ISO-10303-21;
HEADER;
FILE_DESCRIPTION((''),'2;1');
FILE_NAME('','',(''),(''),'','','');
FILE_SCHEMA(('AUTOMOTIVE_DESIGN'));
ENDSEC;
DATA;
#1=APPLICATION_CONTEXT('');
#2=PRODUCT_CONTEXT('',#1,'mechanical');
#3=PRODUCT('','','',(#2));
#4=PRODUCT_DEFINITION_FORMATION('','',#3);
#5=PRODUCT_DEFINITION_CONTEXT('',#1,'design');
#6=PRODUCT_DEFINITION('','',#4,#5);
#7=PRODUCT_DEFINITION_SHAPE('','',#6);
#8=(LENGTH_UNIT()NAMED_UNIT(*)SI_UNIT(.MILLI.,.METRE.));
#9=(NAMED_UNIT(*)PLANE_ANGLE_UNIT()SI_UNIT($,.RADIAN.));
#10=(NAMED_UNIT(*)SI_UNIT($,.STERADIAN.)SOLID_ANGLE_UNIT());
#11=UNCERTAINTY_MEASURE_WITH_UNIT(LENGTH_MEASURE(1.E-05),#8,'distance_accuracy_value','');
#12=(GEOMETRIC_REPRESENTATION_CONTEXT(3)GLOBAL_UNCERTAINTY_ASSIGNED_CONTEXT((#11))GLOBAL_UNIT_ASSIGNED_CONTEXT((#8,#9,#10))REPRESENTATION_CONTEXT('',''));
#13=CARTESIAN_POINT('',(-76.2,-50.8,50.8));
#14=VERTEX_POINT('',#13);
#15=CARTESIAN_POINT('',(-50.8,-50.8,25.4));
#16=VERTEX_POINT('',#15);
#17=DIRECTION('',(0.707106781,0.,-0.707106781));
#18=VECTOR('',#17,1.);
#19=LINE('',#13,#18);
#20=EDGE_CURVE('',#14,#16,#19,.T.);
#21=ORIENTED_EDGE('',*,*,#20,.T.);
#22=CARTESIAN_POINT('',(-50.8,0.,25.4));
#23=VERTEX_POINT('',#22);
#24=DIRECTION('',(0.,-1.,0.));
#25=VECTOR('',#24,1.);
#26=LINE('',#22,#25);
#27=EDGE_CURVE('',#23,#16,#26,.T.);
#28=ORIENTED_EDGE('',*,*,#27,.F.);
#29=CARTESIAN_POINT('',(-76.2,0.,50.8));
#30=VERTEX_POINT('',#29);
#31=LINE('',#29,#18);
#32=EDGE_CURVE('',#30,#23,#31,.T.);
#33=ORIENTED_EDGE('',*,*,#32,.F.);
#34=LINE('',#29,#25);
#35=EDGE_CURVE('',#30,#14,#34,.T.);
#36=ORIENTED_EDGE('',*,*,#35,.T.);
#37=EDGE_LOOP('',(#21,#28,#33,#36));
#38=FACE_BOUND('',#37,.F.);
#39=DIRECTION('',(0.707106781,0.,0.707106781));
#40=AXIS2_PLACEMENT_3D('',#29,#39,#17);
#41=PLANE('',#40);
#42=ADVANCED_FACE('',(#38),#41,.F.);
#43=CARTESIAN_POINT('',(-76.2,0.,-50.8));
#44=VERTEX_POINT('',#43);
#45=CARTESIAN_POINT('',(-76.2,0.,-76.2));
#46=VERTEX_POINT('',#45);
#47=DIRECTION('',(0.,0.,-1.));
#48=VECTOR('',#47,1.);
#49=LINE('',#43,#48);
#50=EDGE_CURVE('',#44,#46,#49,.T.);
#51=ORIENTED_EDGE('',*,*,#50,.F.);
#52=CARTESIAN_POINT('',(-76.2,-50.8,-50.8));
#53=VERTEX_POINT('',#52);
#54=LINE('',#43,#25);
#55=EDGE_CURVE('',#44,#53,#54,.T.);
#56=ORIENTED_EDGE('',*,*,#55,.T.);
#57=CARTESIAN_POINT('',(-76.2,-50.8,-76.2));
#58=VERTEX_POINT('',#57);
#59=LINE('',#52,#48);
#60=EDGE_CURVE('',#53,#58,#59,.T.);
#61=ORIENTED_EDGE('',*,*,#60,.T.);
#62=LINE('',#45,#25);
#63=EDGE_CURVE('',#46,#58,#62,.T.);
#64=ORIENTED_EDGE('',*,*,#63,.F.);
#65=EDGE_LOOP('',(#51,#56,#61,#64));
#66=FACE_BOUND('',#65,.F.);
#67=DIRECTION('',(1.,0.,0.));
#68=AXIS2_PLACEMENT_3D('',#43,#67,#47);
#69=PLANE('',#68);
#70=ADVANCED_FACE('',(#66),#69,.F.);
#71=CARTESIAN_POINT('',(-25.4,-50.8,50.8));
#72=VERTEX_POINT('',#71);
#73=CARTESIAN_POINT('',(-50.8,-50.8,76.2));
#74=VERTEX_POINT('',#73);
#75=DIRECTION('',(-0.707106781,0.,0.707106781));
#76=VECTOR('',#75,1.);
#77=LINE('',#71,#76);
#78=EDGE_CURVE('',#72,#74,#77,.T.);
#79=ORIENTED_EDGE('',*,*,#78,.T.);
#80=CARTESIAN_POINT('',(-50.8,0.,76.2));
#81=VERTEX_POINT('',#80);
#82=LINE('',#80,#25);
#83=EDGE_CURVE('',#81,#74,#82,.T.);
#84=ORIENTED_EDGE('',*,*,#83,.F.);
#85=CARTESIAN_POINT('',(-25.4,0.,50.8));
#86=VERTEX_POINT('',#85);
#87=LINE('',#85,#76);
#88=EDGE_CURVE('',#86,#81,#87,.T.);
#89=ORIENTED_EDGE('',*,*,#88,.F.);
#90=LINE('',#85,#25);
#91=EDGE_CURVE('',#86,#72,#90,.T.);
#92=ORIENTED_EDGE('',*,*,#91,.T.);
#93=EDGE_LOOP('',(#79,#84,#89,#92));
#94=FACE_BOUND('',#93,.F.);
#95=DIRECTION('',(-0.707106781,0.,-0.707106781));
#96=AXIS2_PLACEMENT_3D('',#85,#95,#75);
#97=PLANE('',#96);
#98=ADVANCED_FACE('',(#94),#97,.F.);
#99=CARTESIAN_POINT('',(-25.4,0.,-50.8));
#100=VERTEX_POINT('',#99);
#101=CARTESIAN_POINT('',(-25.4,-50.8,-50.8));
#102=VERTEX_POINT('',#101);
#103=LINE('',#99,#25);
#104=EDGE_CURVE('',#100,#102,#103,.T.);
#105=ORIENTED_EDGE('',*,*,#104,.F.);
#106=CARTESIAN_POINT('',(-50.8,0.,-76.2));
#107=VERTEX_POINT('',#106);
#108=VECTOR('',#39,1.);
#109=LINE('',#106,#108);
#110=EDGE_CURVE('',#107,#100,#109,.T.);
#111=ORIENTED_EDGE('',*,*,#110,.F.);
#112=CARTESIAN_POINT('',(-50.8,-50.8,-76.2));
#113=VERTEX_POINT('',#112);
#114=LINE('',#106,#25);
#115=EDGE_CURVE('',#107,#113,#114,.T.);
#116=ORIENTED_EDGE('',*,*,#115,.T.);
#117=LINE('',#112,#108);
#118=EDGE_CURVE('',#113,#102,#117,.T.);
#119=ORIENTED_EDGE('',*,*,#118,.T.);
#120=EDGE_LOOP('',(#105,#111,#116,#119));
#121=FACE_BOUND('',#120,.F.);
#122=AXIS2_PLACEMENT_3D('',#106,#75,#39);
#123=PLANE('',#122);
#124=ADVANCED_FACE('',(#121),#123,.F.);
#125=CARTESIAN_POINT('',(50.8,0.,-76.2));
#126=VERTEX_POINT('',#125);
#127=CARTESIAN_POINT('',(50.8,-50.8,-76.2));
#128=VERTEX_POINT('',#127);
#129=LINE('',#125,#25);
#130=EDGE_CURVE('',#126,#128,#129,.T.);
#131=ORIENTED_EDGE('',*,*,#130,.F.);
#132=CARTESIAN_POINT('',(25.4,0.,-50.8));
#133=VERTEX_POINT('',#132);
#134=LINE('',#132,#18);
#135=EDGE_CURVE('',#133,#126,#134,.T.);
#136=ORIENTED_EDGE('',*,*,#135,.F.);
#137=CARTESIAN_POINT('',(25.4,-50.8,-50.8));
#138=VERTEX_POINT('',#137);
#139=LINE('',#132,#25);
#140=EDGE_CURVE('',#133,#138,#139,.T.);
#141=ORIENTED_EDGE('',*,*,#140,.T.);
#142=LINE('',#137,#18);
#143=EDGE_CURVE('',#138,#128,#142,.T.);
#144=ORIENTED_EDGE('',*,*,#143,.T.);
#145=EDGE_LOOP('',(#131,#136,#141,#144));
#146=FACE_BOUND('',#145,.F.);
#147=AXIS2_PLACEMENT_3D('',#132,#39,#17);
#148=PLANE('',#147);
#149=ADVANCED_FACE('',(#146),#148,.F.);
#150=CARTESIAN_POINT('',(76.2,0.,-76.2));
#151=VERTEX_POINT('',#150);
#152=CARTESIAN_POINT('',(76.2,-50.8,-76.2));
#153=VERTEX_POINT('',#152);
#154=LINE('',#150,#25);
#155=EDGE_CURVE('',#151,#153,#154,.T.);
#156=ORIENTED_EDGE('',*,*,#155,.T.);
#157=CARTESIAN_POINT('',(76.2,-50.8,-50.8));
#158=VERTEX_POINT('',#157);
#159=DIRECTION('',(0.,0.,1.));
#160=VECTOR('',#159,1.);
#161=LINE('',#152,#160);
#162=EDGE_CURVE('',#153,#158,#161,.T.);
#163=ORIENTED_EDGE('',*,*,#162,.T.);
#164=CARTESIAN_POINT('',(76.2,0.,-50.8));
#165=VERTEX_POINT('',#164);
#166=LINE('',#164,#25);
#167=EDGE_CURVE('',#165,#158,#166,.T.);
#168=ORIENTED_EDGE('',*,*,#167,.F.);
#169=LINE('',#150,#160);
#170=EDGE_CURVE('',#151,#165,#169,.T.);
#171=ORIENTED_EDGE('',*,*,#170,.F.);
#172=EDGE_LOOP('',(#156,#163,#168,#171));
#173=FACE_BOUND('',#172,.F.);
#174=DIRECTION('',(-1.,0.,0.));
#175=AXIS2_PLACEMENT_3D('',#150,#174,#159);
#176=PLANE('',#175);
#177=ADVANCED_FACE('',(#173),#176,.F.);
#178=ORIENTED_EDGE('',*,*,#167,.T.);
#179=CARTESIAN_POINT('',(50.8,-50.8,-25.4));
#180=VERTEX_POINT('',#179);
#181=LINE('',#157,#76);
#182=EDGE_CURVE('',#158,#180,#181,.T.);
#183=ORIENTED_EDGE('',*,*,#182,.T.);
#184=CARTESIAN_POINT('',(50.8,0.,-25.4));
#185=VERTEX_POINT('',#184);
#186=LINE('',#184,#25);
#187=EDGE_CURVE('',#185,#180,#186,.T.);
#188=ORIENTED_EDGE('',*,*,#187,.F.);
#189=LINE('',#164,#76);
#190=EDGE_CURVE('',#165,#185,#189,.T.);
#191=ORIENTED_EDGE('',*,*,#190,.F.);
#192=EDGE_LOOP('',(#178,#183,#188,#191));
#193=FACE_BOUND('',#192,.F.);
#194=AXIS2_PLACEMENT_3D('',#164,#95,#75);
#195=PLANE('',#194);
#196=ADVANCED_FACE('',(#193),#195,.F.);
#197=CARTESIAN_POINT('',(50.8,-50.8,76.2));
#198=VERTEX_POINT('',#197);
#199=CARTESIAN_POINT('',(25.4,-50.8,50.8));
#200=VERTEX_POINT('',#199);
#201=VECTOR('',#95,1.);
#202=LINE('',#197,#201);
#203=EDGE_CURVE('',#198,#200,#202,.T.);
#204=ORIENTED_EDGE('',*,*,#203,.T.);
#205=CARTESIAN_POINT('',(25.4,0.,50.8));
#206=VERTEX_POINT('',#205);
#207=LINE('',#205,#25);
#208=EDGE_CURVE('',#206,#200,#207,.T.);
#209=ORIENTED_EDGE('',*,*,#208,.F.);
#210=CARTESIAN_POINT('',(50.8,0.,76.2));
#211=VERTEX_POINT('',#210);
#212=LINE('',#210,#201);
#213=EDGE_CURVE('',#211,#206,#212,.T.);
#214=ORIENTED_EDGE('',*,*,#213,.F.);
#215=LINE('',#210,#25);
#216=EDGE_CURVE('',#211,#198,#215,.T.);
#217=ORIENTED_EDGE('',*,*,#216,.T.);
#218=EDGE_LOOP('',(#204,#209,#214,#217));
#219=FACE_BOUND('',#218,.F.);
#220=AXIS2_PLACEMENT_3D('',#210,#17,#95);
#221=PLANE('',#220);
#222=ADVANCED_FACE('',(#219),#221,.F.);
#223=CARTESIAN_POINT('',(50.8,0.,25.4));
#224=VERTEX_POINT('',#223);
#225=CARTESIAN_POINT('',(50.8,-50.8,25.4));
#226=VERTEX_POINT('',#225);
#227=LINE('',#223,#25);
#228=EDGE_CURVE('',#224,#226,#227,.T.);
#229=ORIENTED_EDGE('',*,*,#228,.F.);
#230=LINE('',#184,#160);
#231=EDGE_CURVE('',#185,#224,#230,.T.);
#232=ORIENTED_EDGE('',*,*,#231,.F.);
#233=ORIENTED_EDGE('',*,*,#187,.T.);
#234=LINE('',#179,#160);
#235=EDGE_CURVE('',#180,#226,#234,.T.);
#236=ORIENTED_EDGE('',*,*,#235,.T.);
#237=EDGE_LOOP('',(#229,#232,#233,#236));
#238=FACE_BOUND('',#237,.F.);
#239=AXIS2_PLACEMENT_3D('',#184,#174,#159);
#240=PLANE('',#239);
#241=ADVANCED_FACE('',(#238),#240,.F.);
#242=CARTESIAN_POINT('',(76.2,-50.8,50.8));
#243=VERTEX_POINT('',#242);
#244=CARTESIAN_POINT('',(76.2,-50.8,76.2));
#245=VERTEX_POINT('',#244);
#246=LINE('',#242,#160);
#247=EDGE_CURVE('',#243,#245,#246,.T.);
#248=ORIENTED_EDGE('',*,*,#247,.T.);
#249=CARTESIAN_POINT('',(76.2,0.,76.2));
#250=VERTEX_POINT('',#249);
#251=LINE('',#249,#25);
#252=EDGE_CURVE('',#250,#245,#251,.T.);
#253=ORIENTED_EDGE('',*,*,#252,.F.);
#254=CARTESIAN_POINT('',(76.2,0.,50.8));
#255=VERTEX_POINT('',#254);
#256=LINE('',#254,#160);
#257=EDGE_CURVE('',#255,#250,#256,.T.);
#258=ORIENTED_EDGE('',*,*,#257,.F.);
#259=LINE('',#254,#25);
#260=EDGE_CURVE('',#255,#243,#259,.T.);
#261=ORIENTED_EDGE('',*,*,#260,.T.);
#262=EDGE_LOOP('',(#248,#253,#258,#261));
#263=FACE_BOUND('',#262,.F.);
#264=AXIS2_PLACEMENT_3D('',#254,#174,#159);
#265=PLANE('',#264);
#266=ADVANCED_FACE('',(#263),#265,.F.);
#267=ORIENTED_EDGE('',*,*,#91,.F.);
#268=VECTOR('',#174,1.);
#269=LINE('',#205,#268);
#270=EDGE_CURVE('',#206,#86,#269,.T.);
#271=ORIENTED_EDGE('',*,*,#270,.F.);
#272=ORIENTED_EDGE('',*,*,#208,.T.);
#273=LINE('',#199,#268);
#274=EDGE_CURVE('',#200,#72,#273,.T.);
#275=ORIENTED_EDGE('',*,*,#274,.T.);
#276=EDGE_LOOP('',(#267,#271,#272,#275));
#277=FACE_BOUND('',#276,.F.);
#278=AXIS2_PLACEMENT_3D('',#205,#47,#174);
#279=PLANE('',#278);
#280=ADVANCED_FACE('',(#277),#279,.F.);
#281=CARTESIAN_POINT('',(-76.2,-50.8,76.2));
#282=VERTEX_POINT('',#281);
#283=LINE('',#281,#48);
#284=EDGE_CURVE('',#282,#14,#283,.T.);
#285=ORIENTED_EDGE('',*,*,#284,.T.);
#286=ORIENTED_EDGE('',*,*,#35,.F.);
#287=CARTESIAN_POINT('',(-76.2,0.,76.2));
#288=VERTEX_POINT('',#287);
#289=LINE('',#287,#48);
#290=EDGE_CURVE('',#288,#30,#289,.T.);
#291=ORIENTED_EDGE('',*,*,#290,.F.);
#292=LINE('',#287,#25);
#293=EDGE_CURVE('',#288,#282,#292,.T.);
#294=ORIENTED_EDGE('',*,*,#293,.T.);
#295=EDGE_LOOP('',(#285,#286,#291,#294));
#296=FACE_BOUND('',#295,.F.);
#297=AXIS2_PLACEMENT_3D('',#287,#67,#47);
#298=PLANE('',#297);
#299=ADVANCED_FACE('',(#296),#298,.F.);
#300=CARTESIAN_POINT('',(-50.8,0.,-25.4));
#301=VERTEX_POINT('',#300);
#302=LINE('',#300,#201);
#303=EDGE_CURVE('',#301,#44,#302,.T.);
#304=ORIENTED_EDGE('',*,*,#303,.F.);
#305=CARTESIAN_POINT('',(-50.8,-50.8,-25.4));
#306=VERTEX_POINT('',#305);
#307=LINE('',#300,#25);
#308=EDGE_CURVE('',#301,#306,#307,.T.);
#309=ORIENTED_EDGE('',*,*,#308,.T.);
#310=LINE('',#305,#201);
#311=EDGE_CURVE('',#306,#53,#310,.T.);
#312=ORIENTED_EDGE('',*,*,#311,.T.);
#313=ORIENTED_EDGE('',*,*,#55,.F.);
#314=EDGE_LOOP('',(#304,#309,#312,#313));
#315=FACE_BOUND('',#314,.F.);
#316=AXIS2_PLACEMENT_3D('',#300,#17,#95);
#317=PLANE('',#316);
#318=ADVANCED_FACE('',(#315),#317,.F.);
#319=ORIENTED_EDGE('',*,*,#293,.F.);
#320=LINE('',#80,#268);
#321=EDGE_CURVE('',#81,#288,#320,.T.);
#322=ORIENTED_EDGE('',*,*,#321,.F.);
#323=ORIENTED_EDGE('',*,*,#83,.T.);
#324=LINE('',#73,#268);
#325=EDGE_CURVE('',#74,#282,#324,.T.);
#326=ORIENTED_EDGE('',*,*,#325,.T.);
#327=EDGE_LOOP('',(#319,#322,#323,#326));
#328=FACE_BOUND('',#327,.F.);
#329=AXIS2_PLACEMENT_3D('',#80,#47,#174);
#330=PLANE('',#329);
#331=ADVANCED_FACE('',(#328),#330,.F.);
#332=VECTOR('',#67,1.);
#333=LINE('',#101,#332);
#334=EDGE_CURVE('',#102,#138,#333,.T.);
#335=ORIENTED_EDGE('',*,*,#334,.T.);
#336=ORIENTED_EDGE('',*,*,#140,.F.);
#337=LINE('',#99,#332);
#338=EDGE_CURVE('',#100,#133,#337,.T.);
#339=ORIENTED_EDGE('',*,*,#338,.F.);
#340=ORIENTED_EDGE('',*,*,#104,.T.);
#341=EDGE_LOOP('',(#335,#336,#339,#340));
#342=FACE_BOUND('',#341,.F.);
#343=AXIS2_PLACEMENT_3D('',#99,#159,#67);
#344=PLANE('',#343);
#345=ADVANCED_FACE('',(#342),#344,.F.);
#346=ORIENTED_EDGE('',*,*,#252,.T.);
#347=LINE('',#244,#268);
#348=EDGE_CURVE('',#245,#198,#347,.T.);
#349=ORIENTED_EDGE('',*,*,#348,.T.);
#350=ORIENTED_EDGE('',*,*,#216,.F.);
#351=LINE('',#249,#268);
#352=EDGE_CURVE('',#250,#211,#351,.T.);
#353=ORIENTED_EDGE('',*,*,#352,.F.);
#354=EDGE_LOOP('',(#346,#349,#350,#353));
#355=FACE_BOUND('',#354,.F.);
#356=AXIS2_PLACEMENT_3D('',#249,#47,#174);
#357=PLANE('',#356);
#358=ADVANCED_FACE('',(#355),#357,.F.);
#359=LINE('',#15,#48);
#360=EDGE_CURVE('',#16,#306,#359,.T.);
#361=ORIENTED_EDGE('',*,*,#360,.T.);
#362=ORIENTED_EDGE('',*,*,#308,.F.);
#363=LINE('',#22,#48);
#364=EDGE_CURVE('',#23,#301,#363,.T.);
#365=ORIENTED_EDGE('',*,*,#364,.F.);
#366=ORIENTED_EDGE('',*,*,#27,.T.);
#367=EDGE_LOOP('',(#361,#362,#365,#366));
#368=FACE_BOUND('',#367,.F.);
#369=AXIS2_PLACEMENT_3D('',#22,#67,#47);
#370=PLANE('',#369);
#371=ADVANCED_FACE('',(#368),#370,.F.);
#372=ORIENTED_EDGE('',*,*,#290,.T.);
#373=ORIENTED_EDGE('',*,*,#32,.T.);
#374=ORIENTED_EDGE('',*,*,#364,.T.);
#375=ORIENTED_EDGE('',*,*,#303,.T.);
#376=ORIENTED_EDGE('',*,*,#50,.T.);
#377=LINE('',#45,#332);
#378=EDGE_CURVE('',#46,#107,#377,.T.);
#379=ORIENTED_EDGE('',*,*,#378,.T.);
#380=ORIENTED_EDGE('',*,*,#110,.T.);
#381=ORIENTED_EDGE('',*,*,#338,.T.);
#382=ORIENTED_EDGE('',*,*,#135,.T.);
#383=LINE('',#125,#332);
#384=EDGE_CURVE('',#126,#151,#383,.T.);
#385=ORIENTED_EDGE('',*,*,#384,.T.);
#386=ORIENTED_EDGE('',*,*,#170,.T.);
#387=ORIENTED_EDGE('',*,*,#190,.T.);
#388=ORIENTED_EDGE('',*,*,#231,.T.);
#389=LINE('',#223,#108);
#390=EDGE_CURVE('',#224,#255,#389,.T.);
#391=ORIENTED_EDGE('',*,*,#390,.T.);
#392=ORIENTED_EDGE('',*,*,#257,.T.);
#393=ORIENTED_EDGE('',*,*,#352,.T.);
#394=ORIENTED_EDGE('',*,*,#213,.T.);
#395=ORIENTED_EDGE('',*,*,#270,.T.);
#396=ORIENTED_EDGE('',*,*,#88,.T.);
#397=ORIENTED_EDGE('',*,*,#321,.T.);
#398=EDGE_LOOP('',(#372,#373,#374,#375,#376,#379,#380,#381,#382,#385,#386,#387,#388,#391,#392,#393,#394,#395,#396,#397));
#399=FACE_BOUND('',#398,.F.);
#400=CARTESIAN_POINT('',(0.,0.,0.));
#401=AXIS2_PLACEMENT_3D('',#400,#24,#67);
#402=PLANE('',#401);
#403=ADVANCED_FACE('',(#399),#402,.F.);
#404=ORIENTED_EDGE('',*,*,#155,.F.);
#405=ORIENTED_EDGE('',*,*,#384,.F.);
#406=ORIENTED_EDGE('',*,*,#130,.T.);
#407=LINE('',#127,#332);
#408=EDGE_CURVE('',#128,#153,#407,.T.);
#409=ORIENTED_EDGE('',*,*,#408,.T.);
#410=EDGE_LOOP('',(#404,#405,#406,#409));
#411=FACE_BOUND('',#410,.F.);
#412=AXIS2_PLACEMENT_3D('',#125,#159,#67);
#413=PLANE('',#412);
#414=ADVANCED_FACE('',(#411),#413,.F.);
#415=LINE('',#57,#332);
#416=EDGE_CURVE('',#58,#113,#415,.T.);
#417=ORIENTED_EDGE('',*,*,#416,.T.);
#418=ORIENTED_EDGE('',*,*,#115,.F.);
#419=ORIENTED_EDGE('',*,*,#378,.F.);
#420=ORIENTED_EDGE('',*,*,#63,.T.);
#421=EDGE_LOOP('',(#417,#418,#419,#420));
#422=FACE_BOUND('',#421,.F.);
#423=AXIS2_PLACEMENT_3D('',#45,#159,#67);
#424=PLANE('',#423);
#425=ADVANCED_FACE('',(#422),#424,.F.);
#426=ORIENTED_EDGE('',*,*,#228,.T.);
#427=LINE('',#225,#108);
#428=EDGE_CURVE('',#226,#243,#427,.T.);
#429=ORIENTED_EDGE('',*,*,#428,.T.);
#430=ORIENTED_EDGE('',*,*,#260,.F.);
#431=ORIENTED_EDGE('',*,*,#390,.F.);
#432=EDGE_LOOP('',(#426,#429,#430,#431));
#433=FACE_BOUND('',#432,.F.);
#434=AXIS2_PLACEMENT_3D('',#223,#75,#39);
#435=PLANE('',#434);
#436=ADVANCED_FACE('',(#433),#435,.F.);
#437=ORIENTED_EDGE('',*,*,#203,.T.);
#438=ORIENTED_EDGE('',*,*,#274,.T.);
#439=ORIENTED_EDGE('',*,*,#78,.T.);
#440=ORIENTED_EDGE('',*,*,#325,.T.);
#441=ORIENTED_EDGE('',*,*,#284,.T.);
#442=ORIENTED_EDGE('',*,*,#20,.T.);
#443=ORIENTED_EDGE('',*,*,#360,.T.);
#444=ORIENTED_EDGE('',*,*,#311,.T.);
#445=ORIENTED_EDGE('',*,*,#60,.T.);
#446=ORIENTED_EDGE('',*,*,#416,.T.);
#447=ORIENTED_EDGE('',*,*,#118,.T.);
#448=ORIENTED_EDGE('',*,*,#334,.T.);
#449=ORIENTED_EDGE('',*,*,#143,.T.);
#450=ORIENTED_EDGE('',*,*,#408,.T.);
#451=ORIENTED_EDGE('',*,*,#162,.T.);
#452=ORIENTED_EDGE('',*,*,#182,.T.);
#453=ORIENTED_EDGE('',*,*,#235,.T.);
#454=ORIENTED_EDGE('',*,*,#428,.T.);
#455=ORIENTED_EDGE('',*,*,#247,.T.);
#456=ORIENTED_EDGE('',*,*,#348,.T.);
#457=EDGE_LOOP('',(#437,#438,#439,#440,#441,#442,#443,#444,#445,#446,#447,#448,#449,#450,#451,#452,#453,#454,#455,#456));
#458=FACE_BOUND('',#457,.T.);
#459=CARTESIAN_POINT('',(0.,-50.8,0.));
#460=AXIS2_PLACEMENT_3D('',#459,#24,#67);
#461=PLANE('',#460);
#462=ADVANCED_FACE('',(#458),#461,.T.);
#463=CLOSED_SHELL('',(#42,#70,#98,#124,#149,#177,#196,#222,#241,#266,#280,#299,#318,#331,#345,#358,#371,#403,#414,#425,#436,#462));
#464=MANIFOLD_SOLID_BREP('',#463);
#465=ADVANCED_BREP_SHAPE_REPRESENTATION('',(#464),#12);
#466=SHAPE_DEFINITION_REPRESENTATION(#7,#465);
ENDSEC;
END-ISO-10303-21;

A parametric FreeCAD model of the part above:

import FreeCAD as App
import Part
import Sketcher

V = App.Vector
Q = App.Units.Quantity

doc = App.newDocument("Part")
body = doc.addObject("PartDesign::Body", "Body")

# Sketch on XZ plane
sketch1 = body.newObject("Sketcher::SketchObject", "Sketch")
sketch1.AttachmentSupport = (doc.getObject("XZ_Plane"), [""])
sketch1.MapMode = "FlatFace"
sketch1.addGeometry([
    Part.LineSegment(V(-25, 51, 0), V(-51, 76, 0)),  # 0
    Part.LineSegment(V(-51, 76, 0), V(-76, 76, 0)),  # 1
    Part.LineSegment(V(-76, 76, 0), V(-76, 51, 0)),  # 2
    Part.LineSegment(V(-76, 51, 0), V(-51, 25, 0)),  # 3
    Part.LineSegment(V(-51, 25, 0), V(-51, -25, 0)),  # 4
    Part.LineSegment(V(-51, -25, 0), V(-76, -51, 0)),  # 5
    Part.LineSegment(V(-76, -51, 0), V(-76, -76, 0)),  # 6
    Part.LineSegment(V(-76, -76, 0), V(-51, -76, 0)),  # 7
    Part.LineSegment(V(-51, -76, 0), V(-25, -51, 0)),  # 8
    Part.LineSegment(V(-25, -51, 0), V(25, -51, 0)),  # 9
    Part.LineSegment(V(25, -51, 0), V(51, -76, 0)),  # 10
    Part.LineSegment(V(51, -76, 0), V(76, -76, 0)),  # 11
    Part.LineSegment(V(76, -76, 0), V(76, -51, 0)),  # 12
    Part.LineSegment(V(76, -51, 0), V(51, -25, 0)),  # 13
    Part.LineSegment(V(51, -25, 0), V(51, 25, 0)),  # 14
    Part.LineSegment(V(51, 25, 0), V(76, 51, 0)),  # 15
    Part.LineSegment(V(76, 51, 0), V(76, 76, 0)),  # 16
    Part.LineSegment(V(76, 76, 0), V(51, 76, 0)),  # 17
    Part.LineSegment(V(51, 76, 0), V(25, 51, 0)),  # 18
    Part.LineSegment(V(25, 51, 0), V(-25, 51, 0)),  # 19
], False)
sketch1.addConstraint([
    Sketcher.Constraint("Coincident", 0, 2, 1, 1),
    Sketcher.Constraint("Coincident", 1, 2, 2, 1),
    Sketcher.Constraint("Coincident", 2, 2, 3, 1),
    Sketcher.Constraint("Coincident", 3, 2, 4, 1),
    Sketcher.Constraint("Coincident", 4, 2, 5, 1),
    Sketcher.Constraint("Coincident", 5, 2, 6, 1),
    Sketcher.Constraint("Coincident", 6, 2, 7, 1),
    Sketcher.Constraint("Coincident", 7, 2, 8, 1),
    Sketcher.Constraint("Coincident", 8, 2, 9, 1),
    Sketcher.Constraint("Coincident", 9, 2, 10, 1),
    Sketcher.Constraint("Coincident", 10, 2, 11, 1),
    Sketcher.Constraint("Coincident", 11, 2, 12, 1),
    Sketcher.Constraint("Coincident", 12, 2, 13, 1),
    Sketcher.Constraint("Coincident", 13, 2, 14, 1),
    Sketcher.Constraint("Coincident", 14, 2, 15, 1),
    Sketcher.Constraint("Coincident", 15, 2, 16, 1),
    Sketcher.Constraint("Coincident", 16, 2, 17, 1),
    Sketcher.Constraint("Coincident", 17, 2, 18, 1),
    Sketcher.Constraint("Coincident", 18, 2, 19, 1),
    Sketcher.Constraint("Coincident", 19, 2, 0, 1),
    Sketcher.Constraint("Horizontal", 1),
    Sketcher.Constraint("Vertical", 2),
    Sketcher.Constraint("Vertical", 4),
    Sketcher.Constraint("Vertical", 6),
    Sketcher.Constraint("Horizontal", 7),
    Sketcher.Constraint("Horizontal", 9),
    Sketcher.Constraint("Horizontal", 11),
    Sketcher.Constraint("Vertical", 12),
    Sketcher.Constraint("Vertical", 14),
    Sketcher.Constraint("Vertical", 16),
    Sketcher.Constraint("Horizontal", 17),
    Sketcher.Constraint("Horizontal", 19),
    Sketcher.Constraint("Symmetric", 0, 2, 10, 2, -1, 1),
    Sketcher.Constraint("Symmetric", 2, 2, 12, 2, -1, 1),
    Sketcher.Constraint("Symmetric", 3, 2, 13, 2, -1, 1),
    Sketcher.Constraint("Symmetric", 5, 2, 15, 2, -1, 1),
    Sketcher.Constraint("Symmetric", 7, 2, 17, 2, -1, 1),
    Sketcher.Constraint("Symmetric", 8, 2, 18, 2, -1, 1),
    Sketcher.Constraint("Symmetric", 7, 2, 10, 2, -2),
    Sketcher.Constraint("Symmetric", 5, 2, 12, 2, -2),
    Sketcher.Constraint("Parallel", 0, 3),
    Sketcher.Constraint("Perpendicular", 3, 5),
    Sketcher.Constraint("Parallel", 5, 8),
    Sketcher.Constraint("Perpendicular", 8, 10),
    Sketcher.Constraint("Perpendicular", 13, 15),
    Sketcher.Constraint("Horizontal", 5, 2, 8, 2),
    Sketcher.Constraint("Horizontal", 4, 2, 13, 2),
    Sketcher.Constraint("Vertical", 0, 2, 3, 2),
    Sketcher.Constraint("Equal", 17, 2),
    Sketcher.Constraint("Equal", 19, 4),
    Sketcher.Constraint("DistanceX", 1, 2, 1, 1, Q("1 in")),
    Sketcher.Constraint("DistanceX", 9, 1, 9, 2, Q("2 in")),
])
pad1 = body.newObject("PartDesign::Pad", "Pad")
pad1.Profile = sketch1
pad1.Length = Q("2 in")

doc.recompute()
